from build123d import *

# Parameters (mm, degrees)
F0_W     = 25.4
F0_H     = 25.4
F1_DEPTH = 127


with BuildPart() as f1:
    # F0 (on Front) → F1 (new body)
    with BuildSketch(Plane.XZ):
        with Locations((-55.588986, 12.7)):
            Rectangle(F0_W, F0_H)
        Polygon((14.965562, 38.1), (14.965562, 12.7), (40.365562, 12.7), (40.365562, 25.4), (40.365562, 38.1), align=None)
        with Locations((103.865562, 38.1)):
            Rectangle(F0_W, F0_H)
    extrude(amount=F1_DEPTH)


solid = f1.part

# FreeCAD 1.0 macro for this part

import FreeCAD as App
import Part
import Sketcher
Q = App.Units.Quantity


def add_polygon(sketch, points):
    """Adds a closed chain of lines whose ends are joined by coincident constraints."""
    first, n = sketch.GeometryCount, len(points)
    for a, b in zip(points, points[1:] + points[:1]):
        sketch.addGeometry(Part.LineSegment(App.Vector(*a, 0), App.Vector(*b, 0)), False)
    for i in range(n):
        sketch.addConstraint(Sketcher.Constraint("Coincident", first + i, 2, first + (i + 1) % n, 1))

doc = App.newDocument("Part")
body = doc.addObject("PartDesign::Body", "Body")
body.AllowCompound = True

sketch1 = body.newObject("Sketcher::SketchObject", "Sketch")
sketch1.AttachmentSupport = (doc.getObject("XZ_Plane"), [""])
sketch1.MapMode = "FlatFace"
add_polygon(sketch1, [(-68.288986, 25.4), (-68.288986, 0), (-42.888986, 0), (-42.888986, 25.4)])
add_polygon(sketch1, [(14.965562, 38.1), (14.965562, 12.7), (40.365562, 12.7), (40.365562, 38.1)])
add_polygon(sketch1, [(91.165562, 50.8), (91.165562, 25.4), (116.565562, 25.4), (116.565562, 50.8)])
sketch1.addConstraint(Sketcher.Constraint("Vertical", 0))
sketch1.addConstraint(Sketcher.Constraint("Horizontal", 1))
sketch1.addConstraint(Sketcher.Constraint("Vertical", 2))
sketch1.addConstraint(Sketcher.Constraint("Horizontal", 3))
sketch1.addConstraint(Sketcher.Constraint("Vertical", 4))
sketch1.addConstraint(Sketcher.Constraint("Horizontal", 5))
sketch1.addConstraint(Sketcher.Constraint("Vertical", 6))
sketch1.addConstraint(Sketcher.Constraint("Horizontal", 7))
sketch1.addConstraint(Sketcher.Constraint("Vertical", 8))
sketch1.addConstraint(Sketcher.Constraint("Horizontal", 9))
sketch1.addConstraint(Sketcher.Constraint("Vertical", 10))
sketch1.addConstraint(Sketcher.Constraint("Horizontal", 11))
sketch1.addConstraint(Sketcher.Constraint("PointOnObject", 0, 2, -1))
sketch1.addConstraint(Sketcher.Constraint("Horizontal", 3, 2, 8, 2))
sketch1.addConstraint(Sketcher.Constraint("Equal", 3, 5))
sketch1.addConstraint(Sketcher.Constraint("Equal", 7, 9))
sketch1.addConstraint(Sketcher.Constraint("Equal", 11, 0))
sketch1.addConstraint(Sketcher.Constraint("Equal", 2, 4))
sketch1.addConstraint(Sketcher.Constraint("Equal", 6, 8))
sketch1.addConstraint(Sketcher.Constraint("DistanceX", 1, 1, 1, 2, Q("1 in")))
sketch1.addConstraint(Sketcher.Constraint("DistanceX", 5, 2, 8, 2, Q("2 in")))
sketch1.addConstraint(Sketcher.Constraint("DistanceY", -1, 1, 4, 2, Q("0.5 in")))
sketch1.addConstraint(Sketcher.Constraint("DistanceX", -1, 1, 5, 2, Q("40.365562 mm")))
sketch1.addConstraint(Sketcher.Constraint("DistanceX", 0, 2, 4, 2, Q("83.254548 mm")))
pad1 = body.newObject("PartDesign::Pad", "Pad")
pad1.Profile = sketch1
pad1.Length = Q("5 in")

doc.recompute()
